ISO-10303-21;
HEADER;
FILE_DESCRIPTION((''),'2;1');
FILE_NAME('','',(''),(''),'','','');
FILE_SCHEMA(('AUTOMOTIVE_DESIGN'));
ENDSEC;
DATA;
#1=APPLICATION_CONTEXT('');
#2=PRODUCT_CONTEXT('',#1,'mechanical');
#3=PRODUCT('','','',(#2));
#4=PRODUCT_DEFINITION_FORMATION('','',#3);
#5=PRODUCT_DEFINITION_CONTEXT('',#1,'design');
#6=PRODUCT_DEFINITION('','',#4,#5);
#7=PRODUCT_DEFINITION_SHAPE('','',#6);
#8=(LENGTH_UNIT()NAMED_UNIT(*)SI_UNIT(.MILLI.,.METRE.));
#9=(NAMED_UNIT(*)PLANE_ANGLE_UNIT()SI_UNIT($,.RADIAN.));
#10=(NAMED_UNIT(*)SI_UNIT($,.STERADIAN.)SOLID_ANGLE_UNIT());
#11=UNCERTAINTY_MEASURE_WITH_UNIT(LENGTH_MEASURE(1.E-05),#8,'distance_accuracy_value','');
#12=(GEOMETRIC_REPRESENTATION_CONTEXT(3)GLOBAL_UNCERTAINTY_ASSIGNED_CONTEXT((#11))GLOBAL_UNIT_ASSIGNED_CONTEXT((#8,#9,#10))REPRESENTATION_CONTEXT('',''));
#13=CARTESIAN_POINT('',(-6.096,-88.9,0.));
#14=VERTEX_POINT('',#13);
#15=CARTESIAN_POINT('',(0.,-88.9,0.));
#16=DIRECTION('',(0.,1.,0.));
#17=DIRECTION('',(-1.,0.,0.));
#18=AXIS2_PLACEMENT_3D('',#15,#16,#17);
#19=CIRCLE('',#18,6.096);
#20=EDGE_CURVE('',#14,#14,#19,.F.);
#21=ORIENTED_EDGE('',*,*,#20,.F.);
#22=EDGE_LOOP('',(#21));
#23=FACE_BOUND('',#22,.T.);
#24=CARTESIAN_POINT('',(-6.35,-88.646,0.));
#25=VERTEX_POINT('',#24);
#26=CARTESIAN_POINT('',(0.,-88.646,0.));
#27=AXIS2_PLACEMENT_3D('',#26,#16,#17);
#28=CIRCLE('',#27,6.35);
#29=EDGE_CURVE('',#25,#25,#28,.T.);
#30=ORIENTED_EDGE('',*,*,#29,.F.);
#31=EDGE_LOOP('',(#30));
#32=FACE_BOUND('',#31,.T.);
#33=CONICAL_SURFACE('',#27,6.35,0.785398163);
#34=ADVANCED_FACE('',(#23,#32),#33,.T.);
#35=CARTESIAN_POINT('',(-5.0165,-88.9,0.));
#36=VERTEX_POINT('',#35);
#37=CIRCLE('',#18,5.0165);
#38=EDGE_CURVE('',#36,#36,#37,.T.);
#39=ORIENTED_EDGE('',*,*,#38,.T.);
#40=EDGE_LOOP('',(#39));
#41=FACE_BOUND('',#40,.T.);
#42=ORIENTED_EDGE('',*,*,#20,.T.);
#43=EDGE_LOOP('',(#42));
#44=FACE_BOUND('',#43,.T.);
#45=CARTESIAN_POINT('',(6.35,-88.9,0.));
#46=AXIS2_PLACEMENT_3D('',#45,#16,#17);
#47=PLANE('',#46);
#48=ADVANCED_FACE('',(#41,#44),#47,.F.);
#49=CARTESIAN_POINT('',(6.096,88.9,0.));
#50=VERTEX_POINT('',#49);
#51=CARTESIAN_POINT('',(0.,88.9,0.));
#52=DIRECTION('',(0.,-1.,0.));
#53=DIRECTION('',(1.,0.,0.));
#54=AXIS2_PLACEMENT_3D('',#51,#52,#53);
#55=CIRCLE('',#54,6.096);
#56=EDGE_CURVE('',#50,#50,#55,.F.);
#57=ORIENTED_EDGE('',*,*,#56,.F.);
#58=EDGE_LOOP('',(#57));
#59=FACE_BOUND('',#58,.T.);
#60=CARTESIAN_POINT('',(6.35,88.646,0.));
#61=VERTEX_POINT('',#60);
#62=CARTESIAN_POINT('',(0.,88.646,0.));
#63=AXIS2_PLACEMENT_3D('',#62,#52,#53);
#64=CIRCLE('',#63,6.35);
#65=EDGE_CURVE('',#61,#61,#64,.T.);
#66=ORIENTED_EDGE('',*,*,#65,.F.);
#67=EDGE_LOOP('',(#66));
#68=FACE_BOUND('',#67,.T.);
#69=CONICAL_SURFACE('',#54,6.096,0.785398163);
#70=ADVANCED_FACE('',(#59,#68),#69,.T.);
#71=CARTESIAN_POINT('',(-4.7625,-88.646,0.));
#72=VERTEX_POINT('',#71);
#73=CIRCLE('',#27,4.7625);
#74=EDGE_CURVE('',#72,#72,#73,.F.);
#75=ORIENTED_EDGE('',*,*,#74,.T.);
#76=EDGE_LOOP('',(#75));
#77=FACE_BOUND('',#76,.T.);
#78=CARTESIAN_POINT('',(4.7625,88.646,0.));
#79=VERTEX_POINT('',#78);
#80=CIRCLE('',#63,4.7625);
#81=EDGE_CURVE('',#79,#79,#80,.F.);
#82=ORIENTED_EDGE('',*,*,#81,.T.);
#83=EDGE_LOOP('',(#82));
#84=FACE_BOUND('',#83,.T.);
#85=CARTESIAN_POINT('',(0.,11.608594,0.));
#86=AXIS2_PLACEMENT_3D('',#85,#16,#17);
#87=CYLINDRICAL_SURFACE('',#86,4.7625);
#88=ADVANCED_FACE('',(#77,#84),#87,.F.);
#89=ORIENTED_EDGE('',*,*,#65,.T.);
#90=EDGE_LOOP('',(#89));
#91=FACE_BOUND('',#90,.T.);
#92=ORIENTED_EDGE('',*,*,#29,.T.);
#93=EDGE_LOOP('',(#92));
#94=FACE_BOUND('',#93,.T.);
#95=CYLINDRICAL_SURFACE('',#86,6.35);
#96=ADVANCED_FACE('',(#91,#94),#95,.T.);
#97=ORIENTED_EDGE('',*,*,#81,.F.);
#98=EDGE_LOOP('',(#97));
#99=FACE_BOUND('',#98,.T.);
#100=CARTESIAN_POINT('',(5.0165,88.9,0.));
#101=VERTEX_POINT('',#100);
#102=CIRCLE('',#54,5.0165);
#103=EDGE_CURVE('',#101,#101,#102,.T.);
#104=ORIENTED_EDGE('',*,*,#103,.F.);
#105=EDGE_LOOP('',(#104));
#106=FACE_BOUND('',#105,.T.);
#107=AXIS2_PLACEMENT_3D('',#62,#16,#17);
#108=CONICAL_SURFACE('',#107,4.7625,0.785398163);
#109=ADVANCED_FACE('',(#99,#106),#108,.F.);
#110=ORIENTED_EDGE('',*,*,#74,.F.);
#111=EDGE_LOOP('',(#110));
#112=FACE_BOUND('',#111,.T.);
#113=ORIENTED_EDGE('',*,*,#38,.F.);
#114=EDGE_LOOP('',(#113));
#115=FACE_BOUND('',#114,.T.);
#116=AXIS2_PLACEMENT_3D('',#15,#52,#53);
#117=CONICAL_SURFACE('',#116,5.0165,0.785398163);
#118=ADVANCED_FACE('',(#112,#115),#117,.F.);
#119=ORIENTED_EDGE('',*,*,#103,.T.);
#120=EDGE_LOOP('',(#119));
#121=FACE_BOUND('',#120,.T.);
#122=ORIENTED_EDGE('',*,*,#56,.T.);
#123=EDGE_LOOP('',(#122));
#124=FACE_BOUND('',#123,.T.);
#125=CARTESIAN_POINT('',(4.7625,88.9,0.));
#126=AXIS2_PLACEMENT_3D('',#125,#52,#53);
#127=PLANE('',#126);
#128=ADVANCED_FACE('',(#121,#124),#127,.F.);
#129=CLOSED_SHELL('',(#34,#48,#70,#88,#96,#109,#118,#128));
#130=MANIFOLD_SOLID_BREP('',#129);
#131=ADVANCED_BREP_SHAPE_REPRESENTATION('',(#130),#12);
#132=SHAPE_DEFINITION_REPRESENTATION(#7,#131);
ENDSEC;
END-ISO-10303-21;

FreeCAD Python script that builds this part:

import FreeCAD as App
import Part
import Sketcher
from FreeCAD import Vector
Q = App.Units.Quantity


def edges_at(feature, points):
    """Names of the edges that pass closest to the given points."""
    edges = feature.Shape.Edges
    near = lambda p: min(range(len(edges)), key=lambda i: edges[i].distToShape(Part.Vertex(*p))[0])
    return sorted({f"Edge{near(p) + 1}" for p in points})

doc = App.newDocument("Part")
body = doc.addObject("PartDesign::Body", "Body")

# Sketch on XY plane
sketch1 = body.newObject("Sketcher::SketchObject", "Sketch")
sketch1.AttachmentSupport = (doc.getObject("XY_Plane"), [""])
sketch1.MapMode = "FlatFace"
sketch1.addGeometry([
    Part.LineSegment(Vector(4.8, 88.9, 0), Vector(4.8, -88.9, 0)),
    Part.LineSegment(Vector(4.8, -88.9, 0), Vector(6.3, -88.9, 0)),
    Part.LineSegment(Vector(6.3, -88.9, 0), Vector(6.3, 88.9, 0)),
    Part.LineSegment(Vector(6.3, 88.9, 0), Vector(4.8, 88.9, 0)),
], False)
sketch1.addConstraint([
    Sketcher.Constraint("Coincident", 0, 2, 1, 1),
    Sketcher.Constraint("Coincident", 1, 2, 2, 1),
    Sketcher.Constraint("Coincident", 2, 2, 3, 1),
    Sketcher.Constraint("Coincident", 3, 2, 0, 1),
    Sketcher.Constraint("Vertical", 0),
    Sketcher.Constraint("Horizontal", 1),
    Sketcher.Constraint("Vertical", 2),
    Sketcher.Constraint("Horizontal", 3),
    Sketcher.Constraint("DistanceY", 0, 2, 0, 1, Q("7 in")),
    Sketcher.Constraint("DistanceY", 0, 2, -1, 1, Q("3.5 in")),
    Sketcher.Constraint("DistanceX", 1, 1, 1, 2, Q("0.0625 in")),
    Sketcher.Constraint("DistanceX", -1, 1, 1, 2, Q("0.25 in")),
])
revolution = body.newObject("PartDesign::Revolution", "Revolution")
revolution.Profile = sketch1
revolution.ReferenceAxis = (sketch1, ["V_Axis"])
revolution.Angle = 360
doc.recompute()

chamfer = body.newObject("PartDesign::Chamfer", "Chamfer")
chamfer.Base = (revolution, edges_at(revolution, [
    (-4.763, -88.9, 0),
    (-6.35, -88.9, 0),
    (-6.35, 88.9, 0),
    (-4.763, 88.9, 0),
]))
chamfer.Size = Q("0.01 in")

doc.recompute()
